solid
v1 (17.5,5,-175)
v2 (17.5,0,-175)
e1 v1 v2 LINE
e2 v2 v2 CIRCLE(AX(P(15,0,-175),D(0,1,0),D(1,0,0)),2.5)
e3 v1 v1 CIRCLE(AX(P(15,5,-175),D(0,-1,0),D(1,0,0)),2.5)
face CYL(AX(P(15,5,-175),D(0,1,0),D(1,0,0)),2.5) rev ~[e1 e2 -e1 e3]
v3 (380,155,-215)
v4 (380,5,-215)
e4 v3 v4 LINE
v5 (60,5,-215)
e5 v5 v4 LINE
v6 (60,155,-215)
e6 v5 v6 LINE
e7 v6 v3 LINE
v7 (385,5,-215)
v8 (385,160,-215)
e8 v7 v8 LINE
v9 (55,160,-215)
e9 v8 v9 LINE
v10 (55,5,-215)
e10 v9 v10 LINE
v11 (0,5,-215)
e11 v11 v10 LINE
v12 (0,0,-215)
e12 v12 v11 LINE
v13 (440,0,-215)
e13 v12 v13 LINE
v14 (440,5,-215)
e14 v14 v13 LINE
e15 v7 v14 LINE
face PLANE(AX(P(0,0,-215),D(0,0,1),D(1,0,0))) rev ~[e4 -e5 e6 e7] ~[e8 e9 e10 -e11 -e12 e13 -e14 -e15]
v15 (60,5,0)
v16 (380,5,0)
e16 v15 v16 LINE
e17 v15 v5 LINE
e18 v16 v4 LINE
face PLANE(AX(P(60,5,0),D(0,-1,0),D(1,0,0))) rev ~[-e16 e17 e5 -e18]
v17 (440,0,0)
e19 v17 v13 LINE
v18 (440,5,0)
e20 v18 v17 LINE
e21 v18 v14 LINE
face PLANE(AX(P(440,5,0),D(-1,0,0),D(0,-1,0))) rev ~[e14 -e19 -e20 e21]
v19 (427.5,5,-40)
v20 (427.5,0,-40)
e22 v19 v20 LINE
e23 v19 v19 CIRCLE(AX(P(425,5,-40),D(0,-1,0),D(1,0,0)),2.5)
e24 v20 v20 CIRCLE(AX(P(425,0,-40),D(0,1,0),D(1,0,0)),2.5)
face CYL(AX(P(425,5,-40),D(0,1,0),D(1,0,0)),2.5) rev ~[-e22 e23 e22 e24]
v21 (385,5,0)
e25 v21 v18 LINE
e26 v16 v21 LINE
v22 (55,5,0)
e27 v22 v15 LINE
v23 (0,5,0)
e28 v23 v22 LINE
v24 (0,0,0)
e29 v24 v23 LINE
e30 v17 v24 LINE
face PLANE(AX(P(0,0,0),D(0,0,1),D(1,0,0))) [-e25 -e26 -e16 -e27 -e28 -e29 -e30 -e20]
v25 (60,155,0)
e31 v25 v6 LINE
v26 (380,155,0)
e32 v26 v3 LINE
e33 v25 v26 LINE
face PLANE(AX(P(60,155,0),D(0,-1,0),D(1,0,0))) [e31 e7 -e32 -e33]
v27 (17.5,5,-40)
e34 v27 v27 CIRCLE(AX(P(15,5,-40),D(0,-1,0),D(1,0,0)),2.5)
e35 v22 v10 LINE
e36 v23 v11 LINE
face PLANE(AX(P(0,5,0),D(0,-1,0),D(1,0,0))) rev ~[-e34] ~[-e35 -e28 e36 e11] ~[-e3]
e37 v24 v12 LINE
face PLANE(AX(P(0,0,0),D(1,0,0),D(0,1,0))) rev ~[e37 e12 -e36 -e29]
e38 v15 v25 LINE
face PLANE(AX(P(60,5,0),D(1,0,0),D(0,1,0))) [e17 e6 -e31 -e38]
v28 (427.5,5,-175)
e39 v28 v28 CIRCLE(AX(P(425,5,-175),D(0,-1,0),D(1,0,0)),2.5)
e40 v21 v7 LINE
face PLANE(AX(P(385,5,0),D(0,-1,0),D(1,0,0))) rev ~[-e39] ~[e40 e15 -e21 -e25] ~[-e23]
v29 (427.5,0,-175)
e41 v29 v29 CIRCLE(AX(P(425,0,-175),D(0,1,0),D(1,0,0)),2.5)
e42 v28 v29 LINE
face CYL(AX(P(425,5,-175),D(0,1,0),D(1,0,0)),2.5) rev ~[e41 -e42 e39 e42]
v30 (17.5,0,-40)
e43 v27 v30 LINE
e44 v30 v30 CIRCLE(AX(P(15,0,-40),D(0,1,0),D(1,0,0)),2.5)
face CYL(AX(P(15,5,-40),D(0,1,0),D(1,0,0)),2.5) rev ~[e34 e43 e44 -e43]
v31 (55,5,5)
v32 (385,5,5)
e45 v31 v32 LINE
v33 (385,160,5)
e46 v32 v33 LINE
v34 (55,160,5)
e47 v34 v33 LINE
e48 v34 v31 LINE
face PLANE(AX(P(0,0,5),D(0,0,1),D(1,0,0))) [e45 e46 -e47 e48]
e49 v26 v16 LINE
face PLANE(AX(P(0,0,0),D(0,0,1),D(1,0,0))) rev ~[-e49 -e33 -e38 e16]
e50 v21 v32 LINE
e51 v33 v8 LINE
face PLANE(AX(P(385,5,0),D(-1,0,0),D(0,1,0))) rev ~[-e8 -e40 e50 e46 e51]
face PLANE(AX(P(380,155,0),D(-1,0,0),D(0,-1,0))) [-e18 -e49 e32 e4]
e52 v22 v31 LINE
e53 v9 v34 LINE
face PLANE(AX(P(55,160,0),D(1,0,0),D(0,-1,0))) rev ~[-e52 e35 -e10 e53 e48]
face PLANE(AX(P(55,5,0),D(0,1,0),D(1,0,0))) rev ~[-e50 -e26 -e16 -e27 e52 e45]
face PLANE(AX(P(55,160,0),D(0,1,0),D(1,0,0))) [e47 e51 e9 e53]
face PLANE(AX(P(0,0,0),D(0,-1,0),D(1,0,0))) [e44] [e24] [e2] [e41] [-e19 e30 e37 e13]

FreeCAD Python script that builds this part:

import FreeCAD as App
import Part
import Sketcher

V = App.Vector

doc = App.newDocument("Part")
body = doc.addObject("PartDesign::Body", "Body")

sketch1 = body.newObject("Sketcher::SketchObject", "Sketch")
sketch1.AttachmentSupport = (doc.getObject("XY_Plane"), [""])
sketch1.MapMode = "FlatFace"
sketch1.addGeometry([
    Part.LineSegment(V(0, 5, 0), V(0, 0, 0)),
    Part.LineSegment(V(0, 0, 0), V(440, 0, 0)),
    Part.LineSegment(V(440, 0, 0), V(440, 5, 0)),
    Part.LineSegment(V(440, 5, 0), V(385, 5, 0)),
    Part.LineSegment(V(385, 5, 0), V(385, 160, 0)),
    Part.LineSegment(V(385, 160, 0), V(55, 160, 0)),
    Part.LineSegment(V(55, 160, 0), V(55, 5, 0)),
    Part.LineSegment(V(55, 5, 0), V(0, 5, 0)),
    Part.LineSegment(V(380, 5, 0), V(60, 5, 0)),
    Part.LineSegment(V(60, 5, 0), V(60, 155, 0)),
    Part.LineSegment(V(60, 155, 0), V(380, 155, 0)),
    Part.LineSegment(V(380, 155, 0), V(380, 5, 0)),
], False)
sketch1.addConstraint([
    Sketcher.Constraint("Coincident", 0, 2, 1, 1),
    Sketcher.Constraint("Coincident", 1, 2, 2, 1),
    Sketcher.Constraint("Coincident", 2, 2, 3, 1),
    Sketcher.Constraint("Coincident", 3, 2, 4, 1),
    Sketcher.Constraint("Coincident", 4, 2, 5, 1),
    Sketcher.Constraint("Coincident", 5, 2, 6, 1),
    Sketcher.Constraint("Coincident", 6, 2, 7, 1),
    Sketcher.Constraint("Coincident", 7, 2, 0, 1),
    Sketcher.Constraint("Coincident", 8, 2, 9, 1),
    Sketcher.Constraint("Coincident", 9, 2, 10, 1),
    Sketcher.Constraint("Coincident", 10, 2, 11, 1),
    Sketcher.Constraint("Coincident", 11, 2, 8, 1),
    Sketcher.Constraint("Vertical", 0),
    Sketcher.Constraint("Horizontal", 1),
    Sketcher.Constraint("Vertical", 2),
    Sketcher.Constraint("Horizontal", 3),
    Sketcher.Constraint("Vertical", 4),
    Sketcher.Constraint("Horizontal", 5),
    Sketcher.Constraint("Vertical", 6),
    Sketcher.Constraint("Horizontal", 7),
    Sketcher.Constraint("Horizontal", 8),
    Sketcher.Constraint("Vertical", 9),
    Sketcher.Constraint("Horizontal", 10),
    Sketcher.Constraint("Vertical", 11),
    Sketcher.Constraint("Coincident", 0, 2, -1, 1),
    Sketcher.Constraint("Horizontal", 3, 2, 6, 2),
    Sketcher.Constraint("Horizontal", 7, 2, 8, 2),
    Sketcher.Constraint("Equal", 3, 7),
    Sketcher.Constraint("DistanceX", 1, 1, 1, 2, 440.0),
    Sketcher.Constraint("DistanceY", 0, 2, 0, 1, 5.0),
    Sketcher.Constraint("DistanceY", 9, 1, 9, 2, 150.0),
    Sketcher.Constraint("DistanceY", -1, 1, 4, 2, 160.0),
    Sketcher.Constraint("DistanceX", 6, 2, 8, 2, 5.0),
    Sketcher.Constraint("DistanceX", 10, 2, 4, 2, 5.0),
    Sketcher.Constraint("DistanceX", 3, 2, 3, 1, 55.0),
])
pad1 = body.newObject("PartDesign::Pad", "Pad")
pad1.Profile = sketch1
pad1.Length = 215
pad1.Reversed = True

sketch2 = body.newObject("Sketcher::SketchObject", "Sketch001")
sketch2.AttachmentSupport = (doc.getObject("XZ_Plane"), [""])
sketch2.MapMode = "FlatFace"
sketch2.AttachmentOffset = App.Placement(V(0, 0, -5), App.Rotation())
sketch2.addGeometry([
    Part.Circle(V(425, -40, 0), V(0, 0, 1), 2.5),
    Part.Circle(V(425, -175, 0), V(0, 0, 1), 2.5),
    Part.Circle(V(15, -40, 0), V(0, 0, 1), 2.5),
    Part.Circle(V(15, -175, 0), V(0, 0, 1), 2.5),
], False)
sketch2.addConstraint([
    Sketcher.Constraint("Equal", 0, 1),
    Sketcher.Constraint("Equal", 1, 2),
    Sketcher.Constraint("Equal", 2, 3),
    Sketcher.Constraint("Horizontal", 0, 3, 2, 3),
    Sketcher.Constraint("Horizontal", 1, 3, 3, 3),
    Sketcher.Constraint("Vertical", 0, 3, 1, 3),
    Sketcher.Constraint("Vertical", 2, 3, 3, 3),
    Sketcher.Constraint("Diameter", 0, 5.0),
    Sketcher.Constraint("DistanceY", 0, 3, -1, 1, 40.0),
    Sketcher.Constraint("DistanceX", -1, 1, 2, 3, 15.0),
    Sketcher.Constraint("DistanceX", -1, 1, 0, 3, 425.0),
    Sketcher.Constraint("DistanceY", 1, 3, -1, 1, 175.0),
])
pocket1 = body.newObject("PartDesign::Pocket", "Pocket")
pocket1.Profile = sketch2
pocket1.Length = 215
pocket1.Reversed = True

sketch3 = body.newObject("Sketcher::SketchObject", "Sketch002")
sketch3.AttachmentSupport = (doc.getObject("XY_Plane"), [""])
sketch3.MapMode = "FlatFace"
sketch3.addGeometry([
    Part.LineSegment(V(385, 160, 0), V(55, 160, 0)),
    Part.LineSegment(V(55, 160, 0), V(55, 5, 0)),
    Part.LineSegment(V(55, 5, 0), V(385, 5, 0)),
    Part.LineSegment(V(385, 5, 0), V(385, 160, 0)),
], False)
sketch3.addConstraint([
    Sketcher.Constraint("Coincident", 0, 2, 1, 1),
    Sketcher.Constraint("Coincident", 1, 2, 2, 1),
    Sketcher.Constraint("Coincident", 2, 2, 3, 1),
    Sketcher.Constraint("Coincident", 3, 2, 0, 1),
    Sketcher.Constraint("Horizontal", 0),
    Sketcher.Constraint("Vertical", 1),
    Sketcher.Constraint("Horizontal", 2),
    Sketcher.Constraint("Vertical", 3),
    Sketcher.Constraint("DistanceX", 0, 2, 0, 1, 330.0),
    Sketcher.Constraint("DistanceY", 1, 2, 1, 1, 155.0),
    Sketcher.Constraint("DistanceX", -1, 1, 0, 2, 55.0),
    Sketcher.Constraint("DistanceY", -1, 1, 0, 2, 160.0),
])
pad2 = body.newObject("PartDesign::Pad", "Pad001")
pad2.Profile = sketch3
pad2.Length = 5

doc.recompute()
